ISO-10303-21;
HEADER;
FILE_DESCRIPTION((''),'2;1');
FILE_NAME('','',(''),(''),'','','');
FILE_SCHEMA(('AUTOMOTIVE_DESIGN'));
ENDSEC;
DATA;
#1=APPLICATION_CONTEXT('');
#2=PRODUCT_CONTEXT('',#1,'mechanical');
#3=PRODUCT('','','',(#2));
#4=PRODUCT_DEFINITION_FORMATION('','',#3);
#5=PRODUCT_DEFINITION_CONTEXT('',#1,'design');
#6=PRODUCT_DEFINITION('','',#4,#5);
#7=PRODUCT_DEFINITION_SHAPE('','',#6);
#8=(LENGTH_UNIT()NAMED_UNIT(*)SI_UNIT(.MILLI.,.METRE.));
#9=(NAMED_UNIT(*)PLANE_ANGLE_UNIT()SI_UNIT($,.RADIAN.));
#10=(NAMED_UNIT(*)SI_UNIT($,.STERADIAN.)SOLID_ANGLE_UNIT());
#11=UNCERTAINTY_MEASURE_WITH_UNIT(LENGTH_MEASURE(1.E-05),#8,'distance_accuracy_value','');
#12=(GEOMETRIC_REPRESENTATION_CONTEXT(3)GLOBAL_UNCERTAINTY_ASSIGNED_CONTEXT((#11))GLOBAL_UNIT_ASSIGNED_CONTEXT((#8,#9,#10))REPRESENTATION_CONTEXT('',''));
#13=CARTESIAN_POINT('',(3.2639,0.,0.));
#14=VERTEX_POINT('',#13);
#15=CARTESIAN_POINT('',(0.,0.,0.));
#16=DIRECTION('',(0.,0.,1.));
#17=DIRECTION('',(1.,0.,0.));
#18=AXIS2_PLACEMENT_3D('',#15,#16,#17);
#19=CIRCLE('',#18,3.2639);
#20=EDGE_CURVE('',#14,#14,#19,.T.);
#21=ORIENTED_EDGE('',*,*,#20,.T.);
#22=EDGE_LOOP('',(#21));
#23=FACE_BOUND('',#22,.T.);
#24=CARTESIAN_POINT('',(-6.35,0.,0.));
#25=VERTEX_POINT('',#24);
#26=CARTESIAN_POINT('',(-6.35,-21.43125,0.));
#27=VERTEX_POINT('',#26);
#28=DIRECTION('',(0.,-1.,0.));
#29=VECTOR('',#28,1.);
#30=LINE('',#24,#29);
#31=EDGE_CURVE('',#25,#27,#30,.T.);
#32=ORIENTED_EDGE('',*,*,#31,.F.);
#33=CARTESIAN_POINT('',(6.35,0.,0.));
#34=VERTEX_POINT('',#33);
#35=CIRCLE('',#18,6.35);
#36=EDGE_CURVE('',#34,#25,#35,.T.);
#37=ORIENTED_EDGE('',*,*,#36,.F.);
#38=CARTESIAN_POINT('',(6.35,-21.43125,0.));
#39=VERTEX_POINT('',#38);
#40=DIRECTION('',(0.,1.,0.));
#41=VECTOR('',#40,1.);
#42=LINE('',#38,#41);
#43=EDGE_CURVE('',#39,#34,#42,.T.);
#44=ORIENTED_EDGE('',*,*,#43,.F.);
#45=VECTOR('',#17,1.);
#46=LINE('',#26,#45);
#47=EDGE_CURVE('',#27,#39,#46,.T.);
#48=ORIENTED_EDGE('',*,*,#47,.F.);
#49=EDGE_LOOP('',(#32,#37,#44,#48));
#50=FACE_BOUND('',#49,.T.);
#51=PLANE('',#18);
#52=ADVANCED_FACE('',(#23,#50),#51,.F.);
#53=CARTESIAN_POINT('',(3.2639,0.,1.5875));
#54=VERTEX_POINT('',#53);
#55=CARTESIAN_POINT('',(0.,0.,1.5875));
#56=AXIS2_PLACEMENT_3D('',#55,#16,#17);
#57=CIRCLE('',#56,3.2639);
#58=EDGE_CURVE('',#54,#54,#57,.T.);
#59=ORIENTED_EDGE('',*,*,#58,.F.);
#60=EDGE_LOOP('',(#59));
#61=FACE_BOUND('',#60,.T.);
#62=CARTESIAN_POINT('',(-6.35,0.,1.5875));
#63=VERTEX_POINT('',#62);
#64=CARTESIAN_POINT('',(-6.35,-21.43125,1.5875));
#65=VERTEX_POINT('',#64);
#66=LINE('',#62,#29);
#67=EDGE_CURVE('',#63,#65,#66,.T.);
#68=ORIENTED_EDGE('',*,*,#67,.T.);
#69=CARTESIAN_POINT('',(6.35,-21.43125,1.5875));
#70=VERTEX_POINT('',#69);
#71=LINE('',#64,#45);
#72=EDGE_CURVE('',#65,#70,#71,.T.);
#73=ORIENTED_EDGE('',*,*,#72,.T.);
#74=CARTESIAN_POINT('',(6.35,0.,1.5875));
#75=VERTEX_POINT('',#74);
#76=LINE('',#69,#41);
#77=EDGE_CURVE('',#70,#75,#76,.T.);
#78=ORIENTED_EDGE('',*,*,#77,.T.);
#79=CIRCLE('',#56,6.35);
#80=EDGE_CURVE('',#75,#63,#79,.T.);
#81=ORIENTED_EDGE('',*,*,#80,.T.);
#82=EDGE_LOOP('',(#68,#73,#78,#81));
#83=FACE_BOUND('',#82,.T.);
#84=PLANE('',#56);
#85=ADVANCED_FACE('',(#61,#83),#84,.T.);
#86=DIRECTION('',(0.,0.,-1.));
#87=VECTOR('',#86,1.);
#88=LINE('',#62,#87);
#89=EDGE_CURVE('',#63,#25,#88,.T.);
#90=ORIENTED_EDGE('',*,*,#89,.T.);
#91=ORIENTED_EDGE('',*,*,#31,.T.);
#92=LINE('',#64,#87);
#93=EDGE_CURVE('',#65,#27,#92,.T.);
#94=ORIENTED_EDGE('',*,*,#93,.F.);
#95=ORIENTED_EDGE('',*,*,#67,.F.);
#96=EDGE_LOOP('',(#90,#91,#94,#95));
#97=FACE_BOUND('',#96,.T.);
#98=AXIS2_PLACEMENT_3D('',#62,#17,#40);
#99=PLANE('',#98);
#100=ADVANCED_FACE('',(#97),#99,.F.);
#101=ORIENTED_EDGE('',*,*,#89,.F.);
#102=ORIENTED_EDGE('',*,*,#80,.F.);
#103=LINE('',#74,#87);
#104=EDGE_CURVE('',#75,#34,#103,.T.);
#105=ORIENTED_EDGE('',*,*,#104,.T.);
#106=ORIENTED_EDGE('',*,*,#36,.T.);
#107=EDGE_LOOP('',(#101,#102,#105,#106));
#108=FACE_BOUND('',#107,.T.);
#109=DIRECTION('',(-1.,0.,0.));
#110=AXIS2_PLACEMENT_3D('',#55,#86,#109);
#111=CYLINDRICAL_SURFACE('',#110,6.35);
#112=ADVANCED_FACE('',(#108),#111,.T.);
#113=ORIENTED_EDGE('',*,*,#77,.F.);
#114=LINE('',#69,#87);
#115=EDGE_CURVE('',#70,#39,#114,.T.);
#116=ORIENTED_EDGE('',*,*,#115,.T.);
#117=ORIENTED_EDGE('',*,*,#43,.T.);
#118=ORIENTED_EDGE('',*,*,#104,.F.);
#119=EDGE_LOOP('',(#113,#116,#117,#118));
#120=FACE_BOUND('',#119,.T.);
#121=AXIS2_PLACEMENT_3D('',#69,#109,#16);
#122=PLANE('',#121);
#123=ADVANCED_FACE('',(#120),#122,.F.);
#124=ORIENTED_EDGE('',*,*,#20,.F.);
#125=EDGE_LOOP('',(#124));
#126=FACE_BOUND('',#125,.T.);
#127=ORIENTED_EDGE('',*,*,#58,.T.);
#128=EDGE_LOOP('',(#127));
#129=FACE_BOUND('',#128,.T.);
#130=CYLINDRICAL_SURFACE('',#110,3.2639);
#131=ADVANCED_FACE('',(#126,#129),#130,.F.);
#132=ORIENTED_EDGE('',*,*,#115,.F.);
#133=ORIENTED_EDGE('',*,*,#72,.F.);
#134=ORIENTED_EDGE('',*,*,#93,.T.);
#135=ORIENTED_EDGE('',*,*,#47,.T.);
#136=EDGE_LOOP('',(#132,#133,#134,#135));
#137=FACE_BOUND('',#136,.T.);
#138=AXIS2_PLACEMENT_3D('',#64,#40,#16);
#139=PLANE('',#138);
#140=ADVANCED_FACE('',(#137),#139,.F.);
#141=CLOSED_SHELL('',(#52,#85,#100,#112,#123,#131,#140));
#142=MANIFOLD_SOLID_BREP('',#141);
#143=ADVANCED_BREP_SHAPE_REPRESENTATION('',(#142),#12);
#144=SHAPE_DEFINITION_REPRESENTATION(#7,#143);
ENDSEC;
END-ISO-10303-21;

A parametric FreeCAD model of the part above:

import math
import FreeCAD as App
import Part
import Sketcher
Q = App.Units.Quantity

doc = App.newDocument("Part")
params = doc.addObject("Spreadsheet::Sheet", "Params")
for row, (alias, value) in enumerate([
    ("sketch1_radius", "0.25 in"),
    ("sketch1_diameter", "0.257 in"),
    ("sketch1_height", "0.84375 in"),
    ("pad1_length", "0.0625 in"),
], start=1):
    params.set(f"A{row}", alias)
    params.set(f"B{row}", "=" + value)
    params.setAlias(f"B{row}", alias)

body = doc.addObject("PartDesign::Body", "Body")

sketch1 = body.newObject("Sketcher::SketchObject", "Sketch")
sketch1.AttachmentSupport = (doc.getObject("XY_Plane"), [""])
sketch1.MapMode = "FlatFace"
sketch1.addGeometry(Part.LineSegment(App.Vector(-6.3, -21.4, 0), App.Vector(6.3, -21.4, 0)), False)
sketch1.addGeometry(Part.LineSegment(App.Vector(6.3, -21.4, 0), App.Vector(6.3, 0, 0)), False)
sketch1.addGeometry(Part.ArcOfCircle(Part.Circle(App.Vector(0, 0, 0), App.Vector(0, 0, 1), 6.3), math.radians(0), math.radians(180)), False)
sketch1.addGeometry(Part.LineSegment(App.Vector(-6.3, 0, 0), App.Vector(-6.3, -21.4, 0)), False)
sketch1.addGeometry(Part.Circle(App.Vector(0, 0, 0), App.Vector(0, 0, 1), 3.3), False)
sketch1.addConstraint(Sketcher.Constraint("Coincident", 0, 2, 1, 1))
sketch1.addConstraint(Sketcher.Constraint("Tangent", 1, 2, 2, 1))
sketch1.addConstraint(Sketcher.Constraint("Tangent", 2, 2, 3, 1))
sketch1.addConstraint(Sketcher.Constraint("Coincident", 3, 2, 0, 1))
sketch1.addConstraint(Sketcher.Constraint("Horizontal", 0))
sketch1.addConstraint(Sketcher.Constraint("Vertical", 1))
sketch1.addConstraint(Sketcher.Constraint("Vertical", 3))
sketch1.addConstraint(Sketcher.Constraint("Coincident", 2, 3, -1, 1))
sketch1.addConstraint(Sketcher.Constraint("Coincident", 4, 3, -1, 1))
sketch1.addConstraint(Sketcher.Constraint("Radius", 2, Q("0.25 in")))
sketch1.addConstraint(Sketcher.Constraint("Diameter", 4, Q("0.257 in")))
sketch1.addConstraint(Sketcher.Constraint("DistanceY", 1, 1, 1, 2, Q("0.84375 in")))
sketch1.setExpression("Constraints[9]", "Params.sketch1_radius")
sketch1.setExpression("Constraints[10]", "Params.sketch1_diameter")
sketch1.setExpression("Constraints[11]", "Params.sketch1_height")
pad1 = body.newObject("PartDesign::Pad", "Pad")
pad1.Profile = sketch1
pad1.setExpression("Length", "Params.pad1_length")

doc.recompute()
